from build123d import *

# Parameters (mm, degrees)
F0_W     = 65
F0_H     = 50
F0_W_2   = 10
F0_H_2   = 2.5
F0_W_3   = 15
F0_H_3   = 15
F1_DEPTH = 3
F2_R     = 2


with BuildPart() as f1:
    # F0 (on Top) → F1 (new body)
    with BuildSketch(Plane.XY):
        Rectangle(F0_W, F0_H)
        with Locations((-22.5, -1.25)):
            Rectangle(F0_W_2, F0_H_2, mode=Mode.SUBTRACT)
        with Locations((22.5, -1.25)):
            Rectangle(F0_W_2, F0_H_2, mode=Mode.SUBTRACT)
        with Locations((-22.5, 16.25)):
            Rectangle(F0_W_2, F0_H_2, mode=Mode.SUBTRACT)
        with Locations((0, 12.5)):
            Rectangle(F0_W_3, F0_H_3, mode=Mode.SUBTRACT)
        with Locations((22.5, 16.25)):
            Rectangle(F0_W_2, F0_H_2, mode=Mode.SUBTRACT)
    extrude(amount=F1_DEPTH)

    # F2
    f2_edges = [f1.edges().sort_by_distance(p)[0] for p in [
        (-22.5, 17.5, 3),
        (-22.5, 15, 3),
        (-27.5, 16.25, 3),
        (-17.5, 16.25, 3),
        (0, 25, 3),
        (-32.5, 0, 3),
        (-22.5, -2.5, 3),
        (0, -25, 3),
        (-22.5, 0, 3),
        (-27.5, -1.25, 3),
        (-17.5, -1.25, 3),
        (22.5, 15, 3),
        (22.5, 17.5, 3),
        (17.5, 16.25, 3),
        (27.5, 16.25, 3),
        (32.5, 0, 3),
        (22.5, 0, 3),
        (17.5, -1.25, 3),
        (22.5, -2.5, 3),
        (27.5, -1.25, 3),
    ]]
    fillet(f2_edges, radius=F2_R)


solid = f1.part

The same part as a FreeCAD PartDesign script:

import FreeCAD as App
import Part
import Sketcher


def edges_at(feature, points):
    """Names of the edges that pass closest to the given points."""
    edges = feature.Shape.Edges
    near = lambda p: min(range(len(edges)), key=lambda i: edges[i].distToShape(Part.Vertex(*p))[0])
    return sorted({f"Edge{near(p) + 1}" for p in points})

doc = App.newDocument("Part")
params = doc.addObject("Spreadsheet::Sheet", "Params")
for row, (alias, value) in enumerate([
    ("sketch1_width", "65 mm"),
    ("sketch1_width2", "10 mm"),
    ("sketch1_width3", "15 mm"),
    ("sketch1_height", "50 mm"),
    ("sketch1_height2", "2.5 mm"),
    ("pad1_length", "3 mm"),
    ("fillet_radius", "2 mm"),
], start=1):
    params.set(f"A{row}", alias)
    params.set(f"B{row}", "=" + value)
    params.setAlias(f"B{row}", alias)

body = doc.addObject("PartDesign::Body", "Body")

# Sketch on XY plane
sketch1 = body.newObject("Sketcher::SketchObject", "Sketch")
sketch1.AttachmentSupport = (doc.getObject("XY_Plane"), [""])
sketch1.MapMode = "FlatFace"
sketch1.addGeometry([
    Part.LineSegment(App.Vector(-32.5, 25, 0), App.Vector(-32.5, -25, 0)),  # 0
    Part.LineSegment(App.Vector(-32.5, -25, 0), App.Vector(32.5, -25, 0)),  # 1
    Part.LineSegment(App.Vector(32.5, -25, 0), App.Vector(32.5, 25, 0)),  # 2
    Part.LineSegment(App.Vector(32.5, 25, 0), App.Vector(-32.5, 25, 0)),  # 3
    Part.LineSegment(App.Vector(-17.5, -2.5, 0), App.Vector(-27.5, -2.5, 0)),  # 4
    Part.LineSegment(App.Vector(-27.5, -2.5, 0), App.Vector(-27.5, 0, 0)),  # 5
    Part.LineSegment(App.Vector(-27.5, 0, 0), App.Vector(-17.5, 0, 0)),  # 6
    Part.LineSegment(App.Vector(-17.5, 0, 0), App.Vector(-17.5, -2.5, 0)),  # 7
    Part.LineSegment(App.Vector(27.5, -2.5, 0), App.Vector(17.5, -2.5, 0)),  # 8
    Part.LineSegment(App.Vector(17.5, -2.5, 0), App.Vector(17.5, 0, 0)),  # 9
    Part.LineSegment(App.Vector(17.5, 0, 0), App.Vector(27.5, 0, 0)),  # 10
    Part.LineSegment(App.Vector(27.5, 0, 0), App.Vector(27.5, -2.5, 0)),  # 11
    Part.LineSegment(App.Vector(-17.5, 15, 0), App.Vector(-27.5, 15, 0)),  # 12
    Part.LineSegment(App.Vector(-27.5, 15, 0), App.Vector(-27.5, 17.5, 0)),  # 13
    Part.LineSegment(App.Vector(-27.5, 17.5, 0), App.Vector(-17.5, 17.5, 0)),  # 14
    Part.LineSegment(App.Vector(-17.5, 17.5, 0), App.Vector(-17.5, 15, 0)),  # 15
    Part.LineSegment(App.Vector(7.5, 5, 0), App.Vector(-7.5, 5, 0)),  # 16
    Part.LineSegment(App.Vector(-7.5, 5, 0), App.Vector(-7.5, 20, 0)),  # 17
    Part.LineSegment(App.Vector(-7.5, 20, 0), App.Vector(7.5, 20, 0)),  # 18
    Part.LineSegment(App.Vector(7.5, 20, 0), App.Vector(7.5, 5, 0)),  # 19
    Part.LineSegment(App.Vector(27.5, 15, 0), App.Vector(17.5, 15, 0)),  # 20
    Part.LineSegment(App.Vector(17.5, 15, 0), App.Vector(17.5, 17.5, 0)),  # 21
    Part.LineSegment(App.Vector(17.5, 17.5, 0), App.Vector(27.5, 17.5, 0)),  # 22
    Part.LineSegment(App.Vector(27.5, 17.5, 0), App.Vector(27.5, 15, 0)),  # 23
], False)
sketch1.addConstraint([
    Sketcher.Constraint("Coincident", 0, 2, 1, 1),
    Sketcher.Constraint("Coincident", 1, 2, 2, 1),
    Sketcher.Constraint("Coincident", 2, 2, 3, 1),
    Sketcher.Constraint("Coincident", 3, 2, 0, 1),
    Sketcher.Constraint("Coincident", 4, 2, 5, 1),
    Sketcher.Constraint("Coincident", 5, 2, 6, 1),
    Sketcher.Constraint("Coincident", 6, 2, 7, 1),
    Sketcher.Constraint("Coincident", 7, 2, 4, 1),
    Sketcher.Constraint("Coincident", 8, 2, 9, 1),
    Sketcher.Constraint("Coincident", 9, 2, 10, 1),
    Sketcher.Constraint("Coincident", 10, 2, 11, 1),
    Sketcher.Constraint("Coincident", 11, 2, 8, 1),
    Sketcher.Constraint("Coincident", 12, 2, 13, 1),
    Sketcher.Constraint("Coincident", 13, 2, 14, 1),
    Sketcher.Constraint("Coincident", 14, 2, 15, 1),
    Sketcher.Constraint("Coincident", 15, 2, 12, 1),
    Sketcher.Constraint("Coincident", 16, 2, 17, 1),
    Sketcher.Constraint("Coincident", 17, 2, 18, 1),
    Sketcher.Constraint("Coincident", 18, 2, 19, 1),
    Sketcher.Constraint("Coincident", 19, 2, 16, 1),
    Sketcher.Constraint("Coincident", 20, 2, 21, 1),
    Sketcher.Constraint("Coincident", 21, 2, 22, 1),
    Sketcher.Constraint("Coincident", 22, 2, 23, 1),
    Sketcher.Constraint("Coincident", 23, 2, 20, 1),
    Sketcher.Constraint("Vertical", 0),
    Sketcher.Constraint("Horizontal", 1),
    Sketcher.Constraint("Vertical", 2),
    Sketcher.Constraint("Horizontal", 3),
    Sketcher.Constraint("Horizontal", 4),
    Sketcher.Constraint("Vertical", 5),
    Sketcher.Constraint("Horizontal", 6),
    Sketcher.Constraint("Vertical", 7),
    Sketcher.Constraint("Horizontal", 8),
    Sketcher.Constraint("Vertical", 9),
    Sketcher.Constraint("Horizontal", 10),
    Sketcher.Constraint("Vertical", 11),
    Sketcher.Constraint("Horizontal", 12),
    Sketcher.Constraint("Vertical", 13),
    Sketcher.Constraint("Horizontal", 14),
    Sketcher.Constraint("Vertical", 15),
    Sketcher.Constraint("Horizontal", 16),
    Sketcher.Constraint("Vertical", 17),
    Sketcher.Constraint("Horizontal", 18),
    Sketcher.Constraint("Vertical", 19),
    Sketcher.Constraint("Horizontal", 20),
    Sketcher.Constraint("Vertical", 21),
    Sketcher.Constraint("Horizontal", 22),
    Sketcher.Constraint("Vertical", 23),
    Sketcher.Constraint("Symmetric", 0, 2, 2, 2, -1, 1),
    Sketcher.Constraint("Symmetric", 6, 2, 9, 2, -1, 1),
    Sketcher.Constraint("Symmetric", 5, 2, 10, 2, -2),
    Sketcher.Constraint("Symmetric", 15, 2, 20, 2, -2),
    Sketcher.Constraint("Symmetric", 13, 2, 22, 2, -2),
    Sketcher.Constraint("Horizontal", 7, 2, 8, 2),
    Sketcher.Constraint("Vertical", 5, 2, 12, 2),
    Sketcher.Constraint("Vertical", 7, 2, 14, 2),
    Sketcher.Constraint("Equal", 11, 13),
    Sketcher.Constraint("Equal", 18, 17),
    Sketcher.Constraint("DistanceX", 1, 1, 1, 2, 65.0),
    Sketcher.Constraint("DistanceX", 4, 2, 4, 1, 10.0),
    Sketcher.Constraint("DistanceX", 16, 2, 16, 1, 15.0),
    Sketcher.Constraint("DistanceY", 0, 2, 0, 1, 50.0),
    Sketcher.Constraint("DistanceY", 5, 1, 5, 2, 2.5),
    Sketcher.Constraint("DistanceY", -1, 1, 12, 2, 15.0),
    Sketcher.Constraint("DistanceY", -1, 1, 16, 2, 5.0),
    Sketcher.Constraint("DistanceX", 0, 2, 4, 2, 5.0),
    Sketcher.Constraint("DistanceX", 6, 2, 16, 2, 10.0),
])
sketch1.setExpression("Constraints[58]", "Params.sketch1_width")
sketch1.setExpression("Constraints[59]", "Params.sketch1_width2")
sketch1.setExpression("Constraints[60]", "Params.sketch1_width3")
sketch1.setExpression("Constraints[61]", "Params.sketch1_height")
sketch1.setExpression("Constraints[62]", "Params.sketch1_height2")
pad1 = body.newObject("PartDesign::Pad", "Pad")
pad1.Profile = sketch1
pad1.setExpression("Length", "Params.pad1_length")
doc.recompute()

fillet = body.newObject("PartDesign::Fillet", "Fillet")
fillet.Base = (pad1, edges_at(pad1, [
    (-22.5, 17.5, 3),
    (-22.5, 15, 3),
    (-27.5, 16.25, 3),
    (-17.5, 16.25, 3),
    (0, 25, 3),
    (-32.5, 0, 3),
    (-22.5, -2.5, 3),
    (0, -25, 3),
    (-22.5, 0, 3),
    (-27.5, -1.25, 3),
    (-17.5, -1.25, 3),
    (22.5, 15, 3),
    (22.5, 17.5, 3),
    (17.5, 16.25, 3),
    (27.5, 16.25, 3),
    (32.5, 0, 3),
    (22.5, 0, 3),
    (17.5, -1.25, 3),
    (22.5, -2.5, 3),
    (27.5, -1.25, 3),
]))
fillet.setExpression("Radius", "Params.fillet_radius")

doc.recompute()
